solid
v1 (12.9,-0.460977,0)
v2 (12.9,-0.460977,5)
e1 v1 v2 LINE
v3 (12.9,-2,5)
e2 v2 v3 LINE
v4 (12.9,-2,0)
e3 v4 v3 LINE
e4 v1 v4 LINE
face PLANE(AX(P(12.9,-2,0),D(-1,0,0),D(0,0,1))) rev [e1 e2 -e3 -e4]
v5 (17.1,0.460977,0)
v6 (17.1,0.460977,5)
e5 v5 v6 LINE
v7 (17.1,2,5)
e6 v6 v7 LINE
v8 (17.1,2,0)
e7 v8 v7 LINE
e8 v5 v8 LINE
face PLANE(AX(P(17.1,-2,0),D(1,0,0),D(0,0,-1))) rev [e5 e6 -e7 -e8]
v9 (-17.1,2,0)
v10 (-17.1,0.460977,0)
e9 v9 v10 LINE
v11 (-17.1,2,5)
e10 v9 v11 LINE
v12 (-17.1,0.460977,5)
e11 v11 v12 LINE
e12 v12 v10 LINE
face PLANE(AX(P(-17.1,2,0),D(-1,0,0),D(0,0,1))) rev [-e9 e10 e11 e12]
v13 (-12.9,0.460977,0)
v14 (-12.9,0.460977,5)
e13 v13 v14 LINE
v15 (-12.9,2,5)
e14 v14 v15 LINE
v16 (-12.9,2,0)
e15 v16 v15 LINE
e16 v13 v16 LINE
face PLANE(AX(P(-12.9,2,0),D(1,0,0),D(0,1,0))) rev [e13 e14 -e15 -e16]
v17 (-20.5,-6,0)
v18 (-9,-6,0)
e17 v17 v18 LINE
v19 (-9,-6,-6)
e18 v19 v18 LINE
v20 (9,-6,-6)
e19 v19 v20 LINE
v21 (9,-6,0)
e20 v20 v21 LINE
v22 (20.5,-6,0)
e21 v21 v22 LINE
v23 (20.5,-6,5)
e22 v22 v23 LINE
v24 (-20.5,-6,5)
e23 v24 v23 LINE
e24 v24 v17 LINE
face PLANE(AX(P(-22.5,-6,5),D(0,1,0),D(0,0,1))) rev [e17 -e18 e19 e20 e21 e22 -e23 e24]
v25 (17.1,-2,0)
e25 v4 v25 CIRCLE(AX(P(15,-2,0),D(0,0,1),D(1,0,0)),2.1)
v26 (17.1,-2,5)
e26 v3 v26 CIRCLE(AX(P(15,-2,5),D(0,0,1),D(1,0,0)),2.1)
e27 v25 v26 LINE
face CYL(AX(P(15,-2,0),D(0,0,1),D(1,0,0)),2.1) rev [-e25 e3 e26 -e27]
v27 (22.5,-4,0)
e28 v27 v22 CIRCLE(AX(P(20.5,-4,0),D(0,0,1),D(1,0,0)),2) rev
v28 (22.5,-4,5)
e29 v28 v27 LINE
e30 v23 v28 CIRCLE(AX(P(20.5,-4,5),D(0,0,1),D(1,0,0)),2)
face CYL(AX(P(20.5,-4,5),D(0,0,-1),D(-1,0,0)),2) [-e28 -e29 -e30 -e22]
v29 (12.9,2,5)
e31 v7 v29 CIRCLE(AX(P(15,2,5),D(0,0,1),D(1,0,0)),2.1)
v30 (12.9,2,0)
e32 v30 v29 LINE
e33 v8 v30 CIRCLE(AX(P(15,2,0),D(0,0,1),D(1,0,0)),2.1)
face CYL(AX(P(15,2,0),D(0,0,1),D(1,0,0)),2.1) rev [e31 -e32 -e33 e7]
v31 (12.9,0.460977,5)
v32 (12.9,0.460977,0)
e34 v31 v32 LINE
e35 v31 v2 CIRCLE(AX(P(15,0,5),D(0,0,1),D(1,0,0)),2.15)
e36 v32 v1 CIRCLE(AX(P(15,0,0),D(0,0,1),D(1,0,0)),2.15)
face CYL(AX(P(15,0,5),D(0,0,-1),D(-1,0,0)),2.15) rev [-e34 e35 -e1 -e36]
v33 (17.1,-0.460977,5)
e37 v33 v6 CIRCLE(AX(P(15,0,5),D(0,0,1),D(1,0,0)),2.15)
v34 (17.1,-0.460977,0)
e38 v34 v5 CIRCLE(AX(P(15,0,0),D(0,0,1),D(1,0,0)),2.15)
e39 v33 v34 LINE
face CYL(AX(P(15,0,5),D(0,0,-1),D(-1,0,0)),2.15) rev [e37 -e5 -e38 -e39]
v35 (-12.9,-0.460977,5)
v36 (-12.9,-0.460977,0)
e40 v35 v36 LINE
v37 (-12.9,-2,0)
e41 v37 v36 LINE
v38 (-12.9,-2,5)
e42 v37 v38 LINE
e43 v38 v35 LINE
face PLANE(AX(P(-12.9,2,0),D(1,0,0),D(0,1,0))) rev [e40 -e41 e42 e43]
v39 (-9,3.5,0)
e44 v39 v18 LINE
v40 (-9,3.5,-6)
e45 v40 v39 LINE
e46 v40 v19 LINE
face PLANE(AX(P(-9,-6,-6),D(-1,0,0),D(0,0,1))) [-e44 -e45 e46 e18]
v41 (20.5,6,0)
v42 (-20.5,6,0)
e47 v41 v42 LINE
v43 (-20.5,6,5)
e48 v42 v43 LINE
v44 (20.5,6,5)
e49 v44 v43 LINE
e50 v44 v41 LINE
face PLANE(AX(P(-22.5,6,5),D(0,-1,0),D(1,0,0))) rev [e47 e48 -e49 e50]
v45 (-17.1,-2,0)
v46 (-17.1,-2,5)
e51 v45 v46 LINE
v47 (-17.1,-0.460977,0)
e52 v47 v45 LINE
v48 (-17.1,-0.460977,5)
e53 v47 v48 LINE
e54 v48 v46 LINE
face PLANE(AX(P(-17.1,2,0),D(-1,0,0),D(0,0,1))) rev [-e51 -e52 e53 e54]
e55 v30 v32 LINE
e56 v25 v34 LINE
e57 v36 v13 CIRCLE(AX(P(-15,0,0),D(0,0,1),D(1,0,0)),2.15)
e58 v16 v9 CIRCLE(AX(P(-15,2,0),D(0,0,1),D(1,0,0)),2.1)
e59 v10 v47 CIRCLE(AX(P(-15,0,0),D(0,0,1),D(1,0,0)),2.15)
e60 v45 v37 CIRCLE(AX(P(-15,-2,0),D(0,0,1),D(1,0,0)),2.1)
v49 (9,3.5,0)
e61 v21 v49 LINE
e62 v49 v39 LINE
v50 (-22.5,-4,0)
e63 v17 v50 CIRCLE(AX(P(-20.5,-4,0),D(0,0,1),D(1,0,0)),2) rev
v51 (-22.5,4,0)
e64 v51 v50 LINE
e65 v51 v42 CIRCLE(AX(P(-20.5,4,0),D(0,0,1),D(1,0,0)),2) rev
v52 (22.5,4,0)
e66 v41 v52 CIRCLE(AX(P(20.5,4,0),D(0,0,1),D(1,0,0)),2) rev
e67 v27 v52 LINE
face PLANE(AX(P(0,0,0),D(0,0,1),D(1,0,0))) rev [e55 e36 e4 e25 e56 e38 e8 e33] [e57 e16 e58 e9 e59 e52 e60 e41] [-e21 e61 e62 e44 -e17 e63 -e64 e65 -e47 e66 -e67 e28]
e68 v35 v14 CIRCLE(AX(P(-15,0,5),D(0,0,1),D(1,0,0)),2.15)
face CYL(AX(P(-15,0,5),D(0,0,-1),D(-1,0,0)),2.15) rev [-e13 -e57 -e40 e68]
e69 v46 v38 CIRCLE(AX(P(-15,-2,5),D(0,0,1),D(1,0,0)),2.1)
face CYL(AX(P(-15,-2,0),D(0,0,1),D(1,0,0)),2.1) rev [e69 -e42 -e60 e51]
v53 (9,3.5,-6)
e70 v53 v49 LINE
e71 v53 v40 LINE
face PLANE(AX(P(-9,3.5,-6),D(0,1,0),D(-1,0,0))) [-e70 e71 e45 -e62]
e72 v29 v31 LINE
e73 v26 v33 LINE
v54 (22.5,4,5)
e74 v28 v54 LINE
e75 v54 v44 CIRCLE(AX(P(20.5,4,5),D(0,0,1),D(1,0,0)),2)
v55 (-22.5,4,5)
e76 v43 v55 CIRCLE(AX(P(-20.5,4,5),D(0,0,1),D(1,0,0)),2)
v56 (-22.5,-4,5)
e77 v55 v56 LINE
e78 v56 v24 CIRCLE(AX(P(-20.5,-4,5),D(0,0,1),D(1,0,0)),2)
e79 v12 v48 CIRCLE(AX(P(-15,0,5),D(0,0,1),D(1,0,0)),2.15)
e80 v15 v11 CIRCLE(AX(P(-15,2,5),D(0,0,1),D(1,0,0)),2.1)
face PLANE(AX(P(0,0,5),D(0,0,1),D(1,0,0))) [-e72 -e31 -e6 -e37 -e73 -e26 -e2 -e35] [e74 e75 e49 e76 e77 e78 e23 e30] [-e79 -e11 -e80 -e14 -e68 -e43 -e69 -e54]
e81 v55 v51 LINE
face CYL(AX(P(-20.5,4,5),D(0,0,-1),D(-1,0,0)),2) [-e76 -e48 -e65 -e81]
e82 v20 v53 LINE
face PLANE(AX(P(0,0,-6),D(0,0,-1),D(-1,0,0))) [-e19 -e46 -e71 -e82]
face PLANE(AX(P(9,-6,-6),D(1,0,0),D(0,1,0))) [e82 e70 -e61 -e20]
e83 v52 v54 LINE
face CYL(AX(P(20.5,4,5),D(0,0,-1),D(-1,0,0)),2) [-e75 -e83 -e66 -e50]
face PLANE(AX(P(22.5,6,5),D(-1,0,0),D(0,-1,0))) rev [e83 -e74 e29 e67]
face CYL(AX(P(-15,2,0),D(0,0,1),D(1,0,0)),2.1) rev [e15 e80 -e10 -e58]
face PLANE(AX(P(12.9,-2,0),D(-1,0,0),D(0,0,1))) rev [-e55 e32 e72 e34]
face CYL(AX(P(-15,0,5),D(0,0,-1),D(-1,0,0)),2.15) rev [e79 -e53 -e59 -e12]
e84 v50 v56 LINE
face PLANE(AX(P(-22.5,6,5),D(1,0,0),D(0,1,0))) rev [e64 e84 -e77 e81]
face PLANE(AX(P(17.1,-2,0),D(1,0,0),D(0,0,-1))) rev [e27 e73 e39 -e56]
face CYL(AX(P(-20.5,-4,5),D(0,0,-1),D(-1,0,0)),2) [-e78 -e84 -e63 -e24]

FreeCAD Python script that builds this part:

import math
import FreeCAD as App
import Part
import Sketcher
Q = App.Units.Quantity


def edges_at(feature, points):
    """Names of the edges that pass closest to the given points."""
    edges = feature.Shape.Edges
    near = lambda p: min(range(len(edges)), key=lambda i: edges[i].distToShape(Part.Vertex(*p))[0])
    return sorted({f"Edge{near(p) + 1}" for p in points})


def add_polygon(sketch, points):
    """Adds a closed chain of lines whose ends are joined by coincident constraints."""
    first, n = sketch.GeometryCount, len(points)
    for a, b in zip(points, points[1:] + points[:1]):
        sketch.addGeometry(Part.LineSegment(App.Vector(*a, 0), App.Vector(*b, 0)), False)
    for i in range(n):
        sketch.addConstraint(Sketcher.Constraint("Coincident", first + i, 2, first + (i + 1) % n, 1))

doc = App.newDocument("Part")
params = doc.addObject("Spreadsheet::Sheet", "Params")
for row, (alias, value) in enumerate([
    ("sketch1_diameter", "4.3 mm"),
    ("sketch1_width", "45 mm"),
    ("sketch1_height", "12 mm"),
    ("pad1_length", "5 mm"),
    ("sketch2_radius", "2.1 mm"),
    ("sketch2_height", "4 mm"),
    ("sketch3_width", "18 mm"),
    ("sketch3_height", "9.5 mm"),
    ("pad2_length", "6 mm"),
    ("fillet_radius", "2 mm"),
], start=1):
    params.set(f"A{row}", alias)
    params.set(f"B{row}", "=" + value)
    params.setAlias(f"B{row}", alias)

body = doc.addObject("PartDesign::Body", "Body")

# Sketch on XY plane
sketch1 = body.newObject("Sketcher::SketchObject", "Sketch")
sketch1.AttachmentSupport = (doc.getObject("XY_Plane"), [""])
sketch1.MapMode = "FlatFace"
add_polygon(sketch1, [(-22.5, 6), (-22.5, -6), (22.5, -6), (22.5, 6)])  # lines 0-3
sketch1.addGeometry(Part.Circle(App.Vector(-15, 0, 0), App.Vector(0, 0, 1), 2.1), False)  # 4
sketch1.addGeometry(Part.Circle(App.Vector(15, 0, 0), App.Vector(0, 0, 1), 2.1), False)  # 5
sketch1.addConstraint(Sketcher.Constraint("Vertical", 0))
sketch1.addConstraint(Sketcher.Constraint("Horizontal", 1))
sketch1.addConstraint(Sketcher.Constraint("Vertical", 2))
sketch1.addConstraint(Sketcher.Constraint("Horizontal", 3))
sketch1.addConstraint(Sketcher.Constraint("Equal", 4, 5))
sketch1.addConstraint(Sketcher.Constraint("Symmetric", 4, 3, 5, 3, -1, 1))
sketch1.addConstraint(Sketcher.Constraint("Symmetric", 0, 2, 2, 2, -1, 1))
sketch1.addConstraint(Sketcher.Constraint("PointOnObject", 4, 3, -1))
sketch1.addConstraint(Sketcher.Constraint("Diameter", 4, Q("4.3 mm")))
sketch1.addConstraint(Sketcher.Constraint("DistanceX", 1, 1, 1, 2, Q("45 mm")))
sketch1.addConstraint(Sketcher.Constraint("DistanceY", 0, 2, 0, 1, Q("12 mm")))
sketch1.addConstraint(Sketcher.Constraint("DistanceX", 4, 3, -1, 1, Q("15 mm")))
sketch1.setExpression("Constraints[12]", "Params.sketch1_diameter")
sketch1.setExpression("Constraints[13]", "Params.sketch1_width")
sketch1.setExpression("Constraints[14]", "Params.sketch1_height")
pad1 = body.newObject("PartDesign::Pad", "Pad")
pad1.Profile = sketch1
pad1.setExpression("Length", "Params.pad1_length")

# Sketch on XY plane
sketch2 = body.newObject("Sketcher::SketchObject", "Sketch001")
sketch2.AttachmentSupport = (doc.getObject("XY_Plane"), [""])
sketch2.MapMode = "FlatFace"
sketch2.AttachmentOffset = App.Placement(App.Vector(0, 0, 5), App.Rotation())
sketch2.addGeometry(Part.LineSegment(App.Vector(-12.9, -2, 0), App.Vector(-12.9, 2, 0)), False)
sketch2.addGeometry(Part.ArcOfCircle(Part.Circle(App.Vector(-15, 2, 0), App.Vector(0, 0, 1), 2.1), math.radians(0), math.radians(180)), False)
sketch2.addGeometry(Part.LineSegment(App.Vector(-17.1, 2, 0), App.Vector(-17.1, -2, 0)), False)
sketch2.addGeometry(Part.ArcOfCircle(Part.Circle(App.Vector(-15, -2, 0), App.Vector(0, 0, 1), 2.1), math.radians(180), math.radians(360)), False)
sketch2.addGeometry(Part.LineSegment(App.Vector(12.9, 2, 0), App.Vector(12.9, -2, 0)), False)
sketch2.addGeometry(Part.ArcOfCircle(Part.Circle(App.Vector(15, -2, 0), App.Vector(0, 0, 1), 2.1), math.radians(180), math.radians(360)), False)
sketch2.addGeometry(Part.LineSegment(App.Vector(17.1, -2, 0), App.Vector(17.1, 2, 0)), False)
sketch2.addGeometry(Part.ArcOfCircle(Part.Circle(App.Vector(15, 2, 0), App.Vector(0, 0, 1), 2.1), math.radians(0), math.radians(180)), False)
sketch2.addConstraint(Sketcher.Constraint("Tangent", 0, 2, 1, 1))
sketch2.addConstraint(Sketcher.Constraint("Tangent", 1, 2, 2, 1))
sketch2.addConstraint(Sketcher.Constraint("Tangent", 2, 2, 3, 1))
sketch2.addConstraint(Sketcher.Constraint("Tangent", 3, 2, 0, 1))
sketch2.addConstraint(Sketcher.Constraint("Tangent", 4, 2, 5, 1))
sketch2.addConstraint(Sketcher.Constraint("Tangent", 5, 2, 6, 1))
sketch2.addConstraint(Sketcher.Constraint("Tangent", 6, 2, 7, 1))
sketch2.addConstraint(Sketcher.Constraint("Tangent", 7, 2, 4, 1))
sketch2.addConstraint(Sketcher.Constraint("Vertical", 0))
sketch2.addConstraint(Sketcher.Constraint("Vertical", 2))
sketch2.addConstraint(Sketcher.Constraint("Vertical", 4))
sketch2.addConstraint(Sketcher.Constraint("Vertical", 6))
sketch2.addConstraint(Sketcher.Constraint("Equal", 3, 5))
sketch2.addConstraint(Sketcher.Constraint("Symmetric", 1, 3, 5, 3, -1, 1))
sketch2.addConstraint(Sketcher.Constraint("Horizontal", 3, 3, 5, 3))
sketch2.addConstraint(Sketcher.Constraint("Horizontal", 1, 3, 7, 3))
sketch2.addConstraint(Sketcher.Constraint("Radius", 1, Q("2.1 mm")))
sketch2.addConstraint(Sketcher.Constraint("DistanceY", 0, 1, 0, 2, Q("4 mm")))
sketch2.addConstraint(Sketcher.Constraint("DistanceX", 1, 3, -1, 1, Q("15 mm")))
sketch2.setExpression("Constraints[16]", "Params.sketch2_radius")
sketch2.setExpression("Constraints[17]", "Params.sketch2_height")
pocket1 = body.newObject("PartDesign::Pocket", "Pocket")
pocket1.Profile = sketch2
pocket1.Type = "ThroughAll"

# Sketch on XY plane
sketch3 = body.newObject("Sketcher::SketchObject", "Sketch002")
sketch3.AttachmentSupport = (doc.getObject("XY_Plane"), [""])
sketch3.MapMode = "FlatFace"
add_polygon(sketch3, [(-9, 4), (-9, -6), (9, -6), (9, 4)])  # lines 0-3
sketch3.addConstraint(Sketcher.Constraint("Vertical", 0))
sketch3.addConstraint(Sketcher.Constraint("Horizontal", 1))
sketch3.addConstraint(Sketcher.Constraint("Vertical", 2))
sketch3.addConstraint(Sketcher.Constraint("Horizontal", 3))
sketch3.addConstraint(Sketcher.Constraint("DistanceX", 1, 1, 1, 2, Q("18 mm")))
sketch3.addConstraint(Sketcher.Constraint("DistanceY", 0, 2, 0, 1, Q("9.5 mm")))
sketch3.addConstraint(Sketcher.Constraint("DistanceX", 0, 2, -1, 1, Q("9 mm")))
sketch3.addConstraint(Sketcher.Constraint("DistanceY", 0, 2, -1, 1, Q("6 mm")))
sketch3.setExpression("Constraints[8]", "Params.sketch3_width")
sketch3.setExpression("Constraints[9]", "Params.sketch3_height")
pad2 = body.newObject("PartDesign::Pad", "Pad001")
pad2.Profile = sketch3
pad2.setExpression("Length", "Params.pad2_length")
pad2.Reversed = True
doc.recompute()

fillet = body.newObject("PartDesign::Fillet", "Fillet")
fillet.Base = (pad2, edges_at(pad2, [
    (-22.5, 6, 2.5),
    (-22.5, -6, 2.5),
    (22.5, -6, 2.5),
    (22.5, 6, 2.5),
]))
fillet.setExpression("Radius", "Params.fillet_radius")

doc.recompute()
